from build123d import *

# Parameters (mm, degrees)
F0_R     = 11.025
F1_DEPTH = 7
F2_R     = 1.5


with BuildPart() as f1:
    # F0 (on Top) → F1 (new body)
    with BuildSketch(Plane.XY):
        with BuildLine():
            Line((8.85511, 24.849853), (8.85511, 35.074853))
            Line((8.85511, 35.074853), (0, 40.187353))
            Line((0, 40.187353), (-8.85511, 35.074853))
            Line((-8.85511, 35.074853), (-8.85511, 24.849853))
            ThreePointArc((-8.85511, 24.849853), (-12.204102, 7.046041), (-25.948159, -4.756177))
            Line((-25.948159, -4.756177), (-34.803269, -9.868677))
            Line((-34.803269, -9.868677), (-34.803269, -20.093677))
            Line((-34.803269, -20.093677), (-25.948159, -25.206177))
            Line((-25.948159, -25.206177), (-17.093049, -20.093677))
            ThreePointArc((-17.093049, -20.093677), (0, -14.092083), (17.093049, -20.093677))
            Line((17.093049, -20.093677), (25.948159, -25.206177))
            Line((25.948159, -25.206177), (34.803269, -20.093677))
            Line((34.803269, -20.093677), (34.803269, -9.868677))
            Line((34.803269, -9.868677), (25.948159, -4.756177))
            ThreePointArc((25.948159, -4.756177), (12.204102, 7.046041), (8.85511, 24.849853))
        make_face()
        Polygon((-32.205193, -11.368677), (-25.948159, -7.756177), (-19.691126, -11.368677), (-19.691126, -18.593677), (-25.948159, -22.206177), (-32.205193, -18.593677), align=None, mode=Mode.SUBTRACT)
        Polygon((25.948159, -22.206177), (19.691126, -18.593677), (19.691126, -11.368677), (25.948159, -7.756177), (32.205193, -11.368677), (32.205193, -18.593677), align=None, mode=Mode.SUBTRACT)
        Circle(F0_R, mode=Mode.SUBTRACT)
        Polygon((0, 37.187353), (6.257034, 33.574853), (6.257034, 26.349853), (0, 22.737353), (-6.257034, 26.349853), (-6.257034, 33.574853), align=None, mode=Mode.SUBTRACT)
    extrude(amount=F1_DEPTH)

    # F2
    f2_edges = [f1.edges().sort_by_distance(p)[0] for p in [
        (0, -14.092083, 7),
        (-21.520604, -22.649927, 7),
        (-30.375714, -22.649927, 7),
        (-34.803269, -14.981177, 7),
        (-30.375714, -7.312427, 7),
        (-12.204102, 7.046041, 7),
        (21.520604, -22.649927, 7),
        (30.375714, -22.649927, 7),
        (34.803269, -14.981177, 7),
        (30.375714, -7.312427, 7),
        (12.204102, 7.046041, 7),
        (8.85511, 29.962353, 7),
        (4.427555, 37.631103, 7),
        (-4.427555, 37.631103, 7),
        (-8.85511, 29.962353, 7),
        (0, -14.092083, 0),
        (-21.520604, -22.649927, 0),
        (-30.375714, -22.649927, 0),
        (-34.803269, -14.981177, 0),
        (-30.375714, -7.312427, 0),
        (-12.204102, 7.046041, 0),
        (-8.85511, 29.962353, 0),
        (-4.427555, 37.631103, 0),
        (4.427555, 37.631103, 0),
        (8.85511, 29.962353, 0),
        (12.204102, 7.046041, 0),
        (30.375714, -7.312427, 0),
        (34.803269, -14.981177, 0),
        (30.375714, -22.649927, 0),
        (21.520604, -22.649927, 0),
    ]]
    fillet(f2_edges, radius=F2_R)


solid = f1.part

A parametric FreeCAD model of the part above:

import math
import FreeCAD as App
import Part
import Sketcher
Q = App.Units.Quantity


def edges_at(feature, points):
    """Names of the edges that pass closest to the given points."""
    edges = feature.Shape.Edges
    near = lambda p: min(range(len(edges)), key=lambda i: edges[i].distToShape(Part.Vertex(*p))[0])
    return sorted({f"Edge{near(p) + 1}" for p in points})


def add_polygon(sketch, points):
    """Adds a closed chain of lines whose ends are joined by coincident constraints."""
    first, n = sketch.GeometryCount, len(points)
    for a, b in zip(points, points[1:] + points[:1]):
        sketch.addGeometry(Part.LineSegment(App.Vector(*a, 0), App.Vector(*b, 0)), False)
    for i in range(n):
        sketch.addConstraint(Sketcher.Constraint("Coincident", first + i, 2, first + (i + 1) % n, 1))

doc = App.newDocument("Part")
body = doc.addObject("PartDesign::Body", "Body")

# Sketch on XY plane
sketch1 = doc.addObject("Sketcher::SketchObject", "Sketch")
body.addObject(sketch1)
sketch1.AttachmentSupport = (doc.XY_Plane, [""])
sketch1.MapMode = "FlatFace"
sketch1.addGeometry(Part.LineSegment(App.Vector(9, 25, 0), App.Vector(9, 35, 0)), False)  # 0
sketch1.addGeometry(Part.LineSegment(App.Vector(9, 35, 0), App.Vector(0, 40, 0)), False)  # 1
sketch1.addGeometry(Part.LineSegment(App.Vector(0, 40, 0), App.Vector(-9, 35, 0)), False)  # 2
sketch1.addGeometry(Part.LineSegment(App.Vector(-9, 35, 0), App.Vector(-9, 25, 0)), False)  # 3
sketch1.addGeometry(Part.ArcOfCircle(Part.Circle(App.Vector(-36, 21, 0), App.Vector(0, 0, 1), 27), math.radians(-69), math.radians(9)), False)  # 4
sketch1.addGeometry(Part.LineSegment(App.Vector(-26, -5, 0), App.Vector(-35, -10, 0)), False)  # 5
sketch1.addGeometry(Part.LineSegment(App.Vector(-35, -10, 0), App.Vector(-35, -20, 0)), False)  # 6
sketch1.addGeometry(Part.LineSegment(App.Vector(-35, -20, 0), App.Vector(-26, -25, 0)), False)  # 7
sketch1.addGeometry(Part.LineSegment(App.Vector(-26, -25, 0), App.Vector(-17, -20, 0)), False)  # 8
sketch1.addGeometry(Part.ArcOfCircle(Part.Circle(App.Vector(0, -41, 0), App.Vector(0, 0, 1), 27), math.radians(51), math.radians(129)), False)  # 9
sketch1.addGeometry(Part.LineSegment(App.Vector(17, -20, 0), App.Vector(26, -25, 0)), False)  # 10
sketch1.addGeometry(Part.LineSegment(App.Vector(26, -25, 0), App.Vector(35, -20, 0)), False)  # 11
sketch1.addGeometry(Part.LineSegment(App.Vector(35, -20, 0), App.Vector(35, -10, 0)), False)  # 12
sketch1.addGeometry(Part.LineSegment(App.Vector(35, -10, 0), App.Vector(26, -5, 0)), False)  # 13
sketch1.addGeometry(Part.ArcOfCircle(Part.Circle(App.Vector(36, 21, 0), App.Vector(0, 0, 1), 27), math.radians(171), math.radians(249)), False)  # 14
add_polygon(sketch1, [(-32, -19), (-32, -11), (-26, -8), (-20, -11), (-20, -19), (-26, -22)])  # lines 15-20
add_polygon(sketch1, [(32, -19), (26, -22), (20, -19), (20, -11), (26, -8), (32, -11)])  # lines 21-26
sketch1.addGeometry(Part.Circle(App.Vector(0, 0, 0), App.Vector(0, 0, 1), 11), False)  # 27
add_polygon(sketch1, [(-6, 34), (0, 37), (6, 34), (6, 26), (0, 23), (-6, 26)])  # lines 28-33
sketch1.addConstraint(Sketcher.Constraint("Coincident", 0, 2, 1, 1))
sketch1.addConstraint(Sketcher.Constraint("Coincident", 1, 2, 2, 1))
sketch1.addConstraint(Sketcher.Constraint("Coincident", 2, 2, 3, 1))
sketch1.addConstraint(Sketcher.Constraint("Coincident", 3, 2, 4, 2))
sketch1.addConstraint(Sketcher.Constraint("Coincident", 4, 1, 5, 1))
sketch1.addConstraint(Sketcher.Constraint("Coincident", 5, 2, 6, 1))
sketch1.addConstraint(Sketcher.Constraint("Coincident", 6, 2, 7, 1))
sketch1.addConstraint(Sketcher.Constraint("Coincident", 7, 2, 8, 1))
sketch1.addConstraint(Sketcher.Constraint("Coincident", 8, 2, 9, 2))
sketch1.addConstraint(Sketcher.Constraint("Coincident", 9, 1, 10, 1))
sketch1.addConstraint(Sketcher.Constraint("Coincident", 10, 2, 11, 1))
sketch1.addConstraint(Sketcher.Constraint("Coincident", 11, 2, 12, 1))
sketch1.addConstraint(Sketcher.Constraint("Coincident", 12, 2, 13, 1))
sketch1.addConstraint(Sketcher.Constraint("Coincident", 13, 2, 14, 2))
sketch1.addConstraint(Sketcher.Constraint("Coincident", 14, 1, 0, 1))
sketch1.addConstraint(Sketcher.Constraint("Vertical", 0))
sketch1.addConstraint(Sketcher.Constraint("Vertical", 3))
sketch1.addConstraint(Sketcher.Constraint("Vertical", 6))
sketch1.addConstraint(Sketcher.Constraint("Vertical", 12))
sketch1.addConstraint(Sketcher.Constraint("Vertical", 15))
sketch1.addConstraint(Sketcher.Constraint("Vertical", 18))
sketch1.addConstraint(Sketcher.Constraint("Vertical", 23))
sketch1.addConstraint(Sketcher.Constraint("Vertical", 26))
sketch1.addConstraint(Sketcher.Constraint("Vertical", 30))
sketch1.addConstraint(Sketcher.Constraint("Vertical", 33))
sketch1.addConstraint(Sketcher.Constraint("Coincident", 27, 3, -1, 1))
sketch1.addConstraint(Sketcher.Constraint("Equal", 4, 9))
sketch1.addConstraint(Sketcher.Constraint("Equal", 9, 14))
sketch1.addConstraint(Sketcher.Constraint("Symmetric", 4, 3, 14, 3, -2))
sketch1.addConstraint(Sketcher.Constraint("Symmetric", 0, 2, 2, 2, -2))
sketch1.addConstraint(Sketcher.Constraint("Symmetric", 8, 2, 9, 1, -2))
sketch1.addConstraint(Sketcher.Constraint("Symmetric", 7, 2, 10, 2, -2))
sketch1.addConstraint(Sketcher.Constraint("Symmetric", 6, 2, 11, 2, -2))
sketch1.addConstraint(Sketcher.Constraint("Symmetric", 19, 2, 21, 2, -2))
sketch1.addConstraint(Sketcher.Constraint("Symmetric", 18, 2, 22, 2, -2))
sketch1.addConstraint(Sketcher.Constraint("Symmetric", 16, 2, 24, 2, -2))
sketch1.addConstraint(Sketcher.Constraint("Symmetric", 15, 2, 25, 2, -2))
sketch1.addConstraint(Sketcher.Constraint("Symmetric", 30, 2, 32, 2, -2))
sketch1.addConstraint(Sketcher.Constraint("PointOnObject", 1, 2, -2))
sketch1.addConstraint(Sketcher.Constraint("PointOnObject", 28, 2, -2))
sketch1.addConstraint(Sketcher.Constraint("PointOnObject", 31, 2, -2))
sketch1.addConstraint(Sketcher.Constraint("Parallel", 2, 5))
sketch1.addConstraint(Sketcher.Constraint("Parallel", 1, 7))
sketch1.addConstraint(Sketcher.Constraint("Parallel", 5, 8))
sketch1.addConstraint(Sketcher.Constraint("Parallel", 10, 13))
sketch1.addConstraint(Sketcher.Constraint("Parallel", 11, 16))
sketch1.addConstraint(Sketcher.Constraint("Parallel", 13, 17))
sketch1.addConstraint(Sketcher.Constraint("Parallel", 16, 19))
sketch1.addConstraint(Sketcher.Constraint("Parallel", 17, 20))
sketch1.addConstraint(Sketcher.Constraint("Parallel", 19, 21))
sketch1.addConstraint(Sketcher.Constraint("Parallel", 21, 24))
sketch1.addConstraint(Sketcher.Constraint("Parallel", 24, 28))
sketch1.addConstraint(Sketcher.Constraint("Parallel", 25, 29))
sketch1.addConstraint(Sketcher.Constraint("Parallel", 28, 31))
sketch1.addConstraint(Sketcher.Constraint("Horizontal", 6, 2, 8, 2))
sketch1.addConstraint(Sketcher.Constraint("Horizontal", 5, 2, 12, 2))
sketch1.addConstraint(Sketcher.Constraint("Horizontal", 15, 2, 17, 2))
sketch1.addConstraint(Sketcher.Constraint("Horizontal", 18, 2, 20, 2))
sketch1.addConstraint(Sketcher.Constraint("Vertical", 4, 1, 7, 2))
sketch1.addConstraint(Sketcher.Constraint("Vertical", 7, 2, 16, 2))
sketch1.addConstraint(Sketcher.Constraint("Equal", 3, 6))
sketch1.addConstraint(Sketcher.Constraint("Equal", 26, 30))
sketch1.addConstraint(Sketcher.Constraint("Equal", 2, 5))
sketch1.addConstraint(Sketcher.Constraint("Equal", 25, 28))
sketch1.addConstraint(Sketcher.Constraint("Diameter", 27, Q("22.05 mm")))
sketch1.addConstraint(Sketcher.Constraint("Angle", 1, Q("150.000001 deg")))
sketch1.addConstraint(Sketcher.Constraint("DistanceY", 16, 2, 4, 1, Q("3 mm")))
sketch1.addConstraint(Sketcher.Constraint("DistanceY", 7, 2, 19, 2, Q("3 mm")))
sketch1.addConstraint(Sketcher.Constraint("DistanceY", 28, 2, 1, 2, Q("3 mm")))
sketch1.addConstraint(Sketcher.Constraint("DistanceY", 15, 2, 5, 2, Q("1.5 mm")))
sketch1.addConstraint(Sketcher.Constraint("DistanceY", 0, 1, 0, 2, Q("10.225 mm")))
sketch1.addConstraint(Sketcher.Constraint("DistanceY", 7, 2, 4, 1, Q("20.45 mm")))
sketch1.addConstraint(Sketcher.Constraint("Radius", 4, Q("27.342026 mm")))
sketch1.addConstraint(Sketcher.Constraint("DistanceY", 14, 3, 0, 2, Q("14.357799 mm")))
sketch1.addConstraint(Sketcher.Constraint("DistanceX", 8, 2, 9, 1, Q("34.186098 mm")))
sketch1.addConstraint(Sketcher.Constraint("DistanceY", -1, 1, 4, 3, Q("20.717054 mm")))
pad1 = doc.addObject("PartDesign::Pad", "Pad")
body.addObject(pad1)
pad1.Profile = sketch1
pad1.Length = 7
doc.recompute()

fillet = doc.addObject("PartDesign::Fillet", "Fillet")
body.addObject(fillet)
fillet.Base = (pad1, edges_at(pad1, [
    (0, -14.092, 7),
    (-21.521, -22.65, 7),
    (-30.376, -22.65, 7),
    (-34.803, -14.981, 7),
    (-30.376, -7.312, 7),
    (-12.204, 7.046, 7),
    (21.521, -22.65, 7),
    (30.376, -22.65, 7),
    (34.803, -14.981, 7),
    (30.376, -7.312, 7),
    (12.204, 7.046, 7),
    (8.855, 29.962, 7),
    (4.428, 37.631, 7),
    (-4.428, 37.631, 7),
    (-8.855, 29.962, 7),
    (0, -14.092, 0),
    (-21.521, -22.65, 0),
    (-30.376, -22.65, 0),
    (-34.803, -14.981, 0),
    (-30.376, -7.312, 0),
    (-12.204, 7.046, 0),
    (-8.855, 29.962, 0),
    (-4.428, 37.631, 0),
    (4.428, 37.631, 0),
    (8.855, 29.962, 0),
    (12.204, 7.046, 0),
    (30.376, -7.312, 0),
    (34.803, -14.981, 0),
    (30.376, -22.65, 0),
    (21.521, -22.65, 0),
]))
fillet.Radius = 1.5

doc.recompute()
